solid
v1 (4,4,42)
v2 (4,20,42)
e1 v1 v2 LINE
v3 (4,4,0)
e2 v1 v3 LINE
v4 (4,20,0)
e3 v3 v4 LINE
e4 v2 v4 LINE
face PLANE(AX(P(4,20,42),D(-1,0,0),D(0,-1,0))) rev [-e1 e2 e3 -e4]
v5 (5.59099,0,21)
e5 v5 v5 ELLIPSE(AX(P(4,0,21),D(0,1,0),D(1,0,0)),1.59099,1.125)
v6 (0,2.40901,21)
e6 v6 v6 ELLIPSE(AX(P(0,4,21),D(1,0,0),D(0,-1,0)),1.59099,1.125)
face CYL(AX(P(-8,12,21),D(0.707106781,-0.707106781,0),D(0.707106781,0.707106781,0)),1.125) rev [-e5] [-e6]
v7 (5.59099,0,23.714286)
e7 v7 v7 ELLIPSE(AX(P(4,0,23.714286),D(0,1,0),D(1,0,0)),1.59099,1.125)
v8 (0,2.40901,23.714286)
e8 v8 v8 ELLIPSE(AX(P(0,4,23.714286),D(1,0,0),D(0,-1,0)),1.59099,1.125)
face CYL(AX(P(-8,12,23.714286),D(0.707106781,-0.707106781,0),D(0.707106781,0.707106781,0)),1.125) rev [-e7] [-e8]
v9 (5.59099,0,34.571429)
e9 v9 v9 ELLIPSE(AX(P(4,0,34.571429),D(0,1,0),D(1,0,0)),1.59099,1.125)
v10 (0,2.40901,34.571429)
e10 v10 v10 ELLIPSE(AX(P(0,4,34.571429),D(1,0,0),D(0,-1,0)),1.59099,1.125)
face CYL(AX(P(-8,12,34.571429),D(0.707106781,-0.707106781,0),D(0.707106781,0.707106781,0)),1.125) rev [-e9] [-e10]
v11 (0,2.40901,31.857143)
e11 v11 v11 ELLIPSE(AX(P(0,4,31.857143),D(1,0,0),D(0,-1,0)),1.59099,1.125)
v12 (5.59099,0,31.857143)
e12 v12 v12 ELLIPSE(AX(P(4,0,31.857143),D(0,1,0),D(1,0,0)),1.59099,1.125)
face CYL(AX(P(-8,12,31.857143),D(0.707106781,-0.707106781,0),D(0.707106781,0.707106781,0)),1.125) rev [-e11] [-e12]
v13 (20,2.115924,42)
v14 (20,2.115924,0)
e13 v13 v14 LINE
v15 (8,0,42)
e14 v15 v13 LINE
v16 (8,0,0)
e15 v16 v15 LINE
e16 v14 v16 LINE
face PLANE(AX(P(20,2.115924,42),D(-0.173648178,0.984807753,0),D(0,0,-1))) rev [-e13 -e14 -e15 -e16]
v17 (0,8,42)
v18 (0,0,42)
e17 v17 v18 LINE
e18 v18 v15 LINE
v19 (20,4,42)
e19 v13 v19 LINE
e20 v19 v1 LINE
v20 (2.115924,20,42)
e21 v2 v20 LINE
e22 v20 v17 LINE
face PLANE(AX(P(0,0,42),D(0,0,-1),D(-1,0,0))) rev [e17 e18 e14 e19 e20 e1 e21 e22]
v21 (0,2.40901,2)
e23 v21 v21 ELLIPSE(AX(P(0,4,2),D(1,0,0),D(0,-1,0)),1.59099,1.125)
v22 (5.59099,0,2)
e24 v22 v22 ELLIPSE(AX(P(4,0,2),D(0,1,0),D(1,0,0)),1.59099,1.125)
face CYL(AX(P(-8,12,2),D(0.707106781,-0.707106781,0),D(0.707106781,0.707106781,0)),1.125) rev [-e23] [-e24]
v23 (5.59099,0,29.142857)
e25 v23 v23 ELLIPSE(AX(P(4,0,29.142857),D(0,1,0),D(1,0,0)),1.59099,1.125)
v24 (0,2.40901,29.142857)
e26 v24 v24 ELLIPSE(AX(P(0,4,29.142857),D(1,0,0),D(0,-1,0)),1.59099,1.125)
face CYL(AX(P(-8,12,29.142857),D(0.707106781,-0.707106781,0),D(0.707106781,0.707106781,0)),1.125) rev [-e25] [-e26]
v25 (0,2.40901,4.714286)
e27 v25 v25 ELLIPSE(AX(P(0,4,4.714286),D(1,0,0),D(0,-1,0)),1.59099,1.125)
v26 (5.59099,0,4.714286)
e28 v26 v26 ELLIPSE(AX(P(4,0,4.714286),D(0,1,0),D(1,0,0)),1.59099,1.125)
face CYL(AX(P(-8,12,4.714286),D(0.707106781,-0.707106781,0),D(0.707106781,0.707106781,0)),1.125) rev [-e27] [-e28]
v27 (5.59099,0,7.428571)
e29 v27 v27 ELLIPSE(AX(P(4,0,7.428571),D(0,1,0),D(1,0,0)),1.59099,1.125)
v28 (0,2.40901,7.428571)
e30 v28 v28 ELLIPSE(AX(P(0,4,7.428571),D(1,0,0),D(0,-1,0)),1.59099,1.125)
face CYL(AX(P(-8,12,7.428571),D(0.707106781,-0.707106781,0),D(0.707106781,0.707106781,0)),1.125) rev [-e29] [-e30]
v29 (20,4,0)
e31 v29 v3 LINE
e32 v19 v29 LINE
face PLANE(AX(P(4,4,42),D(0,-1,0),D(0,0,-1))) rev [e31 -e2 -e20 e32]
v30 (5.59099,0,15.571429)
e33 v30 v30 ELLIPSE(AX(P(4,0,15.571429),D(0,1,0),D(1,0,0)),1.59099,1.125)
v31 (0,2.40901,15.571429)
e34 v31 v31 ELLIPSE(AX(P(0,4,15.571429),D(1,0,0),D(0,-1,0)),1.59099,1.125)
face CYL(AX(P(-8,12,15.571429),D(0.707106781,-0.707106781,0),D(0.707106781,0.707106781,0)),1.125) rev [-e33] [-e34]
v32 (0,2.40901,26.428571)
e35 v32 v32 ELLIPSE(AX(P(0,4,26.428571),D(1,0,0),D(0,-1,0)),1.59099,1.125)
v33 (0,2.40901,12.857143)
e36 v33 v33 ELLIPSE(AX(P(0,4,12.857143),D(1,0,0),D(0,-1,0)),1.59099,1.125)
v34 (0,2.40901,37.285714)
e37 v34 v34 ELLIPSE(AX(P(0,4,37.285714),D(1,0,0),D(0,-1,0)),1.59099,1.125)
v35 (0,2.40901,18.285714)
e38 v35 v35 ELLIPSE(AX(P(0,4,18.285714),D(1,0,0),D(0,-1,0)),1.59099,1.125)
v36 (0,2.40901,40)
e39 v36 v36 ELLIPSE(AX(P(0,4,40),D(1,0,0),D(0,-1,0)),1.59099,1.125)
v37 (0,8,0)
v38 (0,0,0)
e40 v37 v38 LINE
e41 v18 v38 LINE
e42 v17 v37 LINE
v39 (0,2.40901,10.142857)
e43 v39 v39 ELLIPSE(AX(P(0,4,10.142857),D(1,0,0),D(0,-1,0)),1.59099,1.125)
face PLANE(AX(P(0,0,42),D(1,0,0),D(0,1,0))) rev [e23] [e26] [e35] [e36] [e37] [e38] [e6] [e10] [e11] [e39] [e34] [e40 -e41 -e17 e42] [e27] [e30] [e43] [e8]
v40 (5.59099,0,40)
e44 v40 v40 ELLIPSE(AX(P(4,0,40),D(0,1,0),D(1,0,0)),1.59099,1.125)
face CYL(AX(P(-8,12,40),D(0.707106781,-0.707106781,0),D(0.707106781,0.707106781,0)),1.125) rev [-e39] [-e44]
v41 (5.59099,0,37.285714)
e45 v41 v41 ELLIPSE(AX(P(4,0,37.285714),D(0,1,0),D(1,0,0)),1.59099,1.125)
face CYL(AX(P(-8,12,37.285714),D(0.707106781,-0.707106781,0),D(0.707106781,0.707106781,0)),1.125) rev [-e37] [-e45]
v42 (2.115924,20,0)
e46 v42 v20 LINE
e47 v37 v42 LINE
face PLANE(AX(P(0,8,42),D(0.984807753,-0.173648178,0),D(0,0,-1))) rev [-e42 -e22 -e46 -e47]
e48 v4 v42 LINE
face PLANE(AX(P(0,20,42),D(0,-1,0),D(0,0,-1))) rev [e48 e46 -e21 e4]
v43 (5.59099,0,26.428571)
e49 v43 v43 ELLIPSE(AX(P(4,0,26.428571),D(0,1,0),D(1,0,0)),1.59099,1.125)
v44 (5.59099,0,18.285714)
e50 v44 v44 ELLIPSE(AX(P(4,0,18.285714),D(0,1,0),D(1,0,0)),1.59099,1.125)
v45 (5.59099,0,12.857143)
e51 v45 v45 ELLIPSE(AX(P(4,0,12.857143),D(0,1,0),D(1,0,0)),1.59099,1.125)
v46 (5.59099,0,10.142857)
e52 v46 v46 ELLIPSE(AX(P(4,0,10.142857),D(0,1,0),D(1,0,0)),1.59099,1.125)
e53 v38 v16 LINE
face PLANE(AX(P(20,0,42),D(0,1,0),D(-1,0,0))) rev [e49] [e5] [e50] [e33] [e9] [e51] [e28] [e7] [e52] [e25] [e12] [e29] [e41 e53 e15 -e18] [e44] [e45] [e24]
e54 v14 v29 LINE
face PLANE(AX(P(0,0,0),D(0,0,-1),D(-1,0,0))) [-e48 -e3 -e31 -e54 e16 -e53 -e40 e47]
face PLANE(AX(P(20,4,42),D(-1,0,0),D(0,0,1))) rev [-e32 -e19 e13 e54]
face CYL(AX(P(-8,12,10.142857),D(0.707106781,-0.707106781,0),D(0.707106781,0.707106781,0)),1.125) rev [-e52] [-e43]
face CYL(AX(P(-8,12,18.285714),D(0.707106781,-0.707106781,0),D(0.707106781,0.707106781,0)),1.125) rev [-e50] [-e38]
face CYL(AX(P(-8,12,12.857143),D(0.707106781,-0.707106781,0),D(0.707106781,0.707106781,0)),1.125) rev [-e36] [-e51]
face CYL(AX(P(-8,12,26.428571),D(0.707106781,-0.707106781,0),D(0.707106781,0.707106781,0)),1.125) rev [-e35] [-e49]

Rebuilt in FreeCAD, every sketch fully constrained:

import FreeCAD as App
import Part
import Sketcher

V = App.Vector
Q = App.Units.Quantity


def edges_at(feature, points):
    """Names of the edges that pass closest to the given points."""
    edges = feature.Shape.Edges
    near = lambda p: min(range(len(edges)), key=lambda i: edges[i].distToShape(Part.Vertex(*p))[0])
    return sorted({f"Edge{near(p) + 1}" for p in points})

doc = App.newDocument("Part")
params = doc.addObject("Spreadsheet::Sheet", "Params")
for row, (alias, value) in enumerate([
    ("sketch1_width", "20 mm"),
    ("sketch1_width2", "16 mm"),
    ("pad1_length", "42 mm"),
    ("sketch2_diameter", "2.25 mm"),
    ("chamfer_size", "12 mm"),
    ("chamfer_size2", "2.115924 mm"),
    ("chamfer2_size", "12 mm"),
    ("chamfer2_size2", "2.115924 mm"),
], start=1):
    params.set(f"A{row}", alias)
    params.set(f"B{row}", "=" + value)
    params.setAlias(f"B{row}", alias)

body = doc.addObject("PartDesign::Body", "Body")

sketch1 = body.newObject("Sketcher::SketchObject", "Sketch")
sketch1.AttachmentSupport = (doc.getObject("XY_Plane"), [""])
sketch1.MapMode = "FlatFace"
sketch1.addGeometry([
    Part.LineSegment(V(0, 20, 0), V(0, 0, 0)),
    Part.LineSegment(V(0, 0, 0), V(20, 0, 0)),
    Part.LineSegment(V(20, 0, 0), V(20, 4, 0)),
    Part.LineSegment(V(20, 4, 0), V(4, 4, 0)),
    Part.LineSegment(V(4, 4, 0), V(4, 20, 0)),
    Part.LineSegment(V(4, 20, 0), V(0, 20, 0)),
], False)
sketch1.addConstraint([
    Sketcher.Constraint("Coincident", 0, 2, 1, 1),
    Sketcher.Constraint("Coincident", 1, 2, 2, 1),
    Sketcher.Constraint("Coincident", 2, 2, 3, 1),
    Sketcher.Constraint("Coincident", 3, 2, 4, 1),
    Sketcher.Constraint("Coincident", 4, 2, 5, 1),
    Sketcher.Constraint("Coincident", 5, 2, 0, 1),
    Sketcher.Constraint("Vertical", 0),
    Sketcher.Constraint("Horizontal", 1),
    Sketcher.Constraint("Vertical", 2),
    Sketcher.Constraint("Horizontal", 3),
    Sketcher.Constraint("Vertical", 4),
    Sketcher.Constraint("Horizontal", 5),
    Sketcher.Constraint("Coincident", 0, 2, -1, 1),
    Sketcher.Constraint("Equal", 1, 0),
    Sketcher.Constraint("Equal", 5, 2),
    Sketcher.Constraint("DistanceX", 1, 1, 1, 2, Q("20 mm")),
    Sketcher.Constraint("DistanceX", 3, 2, 3, 1, Q("16 mm")),
])
sketch1.setExpression("Constraints[15]", "Params.sketch1_width")
sketch1.setExpression("Constraints[16]", "Params.sketch1_width2")
pad1 = body.newObject("PartDesign::Pad", "Pad")
pad1.Profile = sketch1
pad1.setExpression("Length", "Params.pad1_length")

sketch2 = body.newObject("Sketcher::SketchObject", "Sketch001")
sketch2.Placement = App.Placement(V(0, 0, 0), App.Rotation(V(0, 0, -1), V(0.707106781, 0.707106781, 0), V(0.707106781, -0.707106781, 0), "ZXY"))
sketch2.addGeometry([
    Part.Circle(V(-40, 2.8, 0), V(0, 0, 1), 1.1),
    Part.Circle(V(-37.3, 2.8, 0), V(0, 0, 1), 1.1),
    Part.Circle(V(-34.6, 2.8, 0), V(0, 0, 1), 1.1),
    Part.Circle(V(-31.9, 2.8, 0), V(0, 0, 1), 1.1),
    Part.Circle(V(-29.1, 2.8, 0), V(0, 0, 1), 1.1),
    Part.Circle(V(-26.4, 2.8, 0), V(0, 0, 1), 1.1),
    Part.Circle(V(-23.7, 2.8, 0), V(0, 0, 1), 1.1),
    Part.Circle(V(-21, 2.8, 0), V(0, 0, 1), 1.1),
    Part.Circle(V(-18.3, 2.8, 0), V(0, 0, 1), 1.1),
    Part.Circle(V(-15.6, 2.8, 0), V(0, 0, 1), 1.1),
    Part.Circle(V(-12.9, 2.8, 0), V(0, 0, 1), 1.1),
    Part.Circle(V(-10.1, 2.8, 0), V(0, 0, 1), 1.1),
    Part.Circle(V(-7.4, 2.8, 0), V(0, 0, 1), 1.1),
    Part.Circle(V(-4.7, 2.8, 0), V(0, 0, 1), 1.1),
    Part.Circle(V(-2, 2.8, 0), V(0, 0, 1), 1.1),
], False)
sketch2.addConstraint([
    Sketcher.Constraint("Equal", 0, 1),
    Sketcher.Constraint("Equal", 1, 2),
    Sketcher.Constraint("Equal", 2, 3),
    Sketcher.Constraint("Equal", 3, 4),
    Sketcher.Constraint("Equal", 4, 5),
    Sketcher.Constraint("Equal", 5, 6),
    Sketcher.Constraint("Equal", 6, 7),
    Sketcher.Constraint("Equal", 7, 8),
    Sketcher.Constraint("Equal", 8, 9),
    Sketcher.Constraint("Equal", 9, 10),
    Sketcher.Constraint("Equal", 10, 11),
    Sketcher.Constraint("Equal", 11, 12),
    Sketcher.Constraint("Equal", 12, 13),
    Sketcher.Constraint("Equal", 13, 14),
    Sketcher.Constraint("Horizontal", 0, 3, 1, 3),
    Sketcher.Constraint("Horizontal", 1, 3, 2, 3),
    Sketcher.Constraint("Horizontal", 2, 3, 3, 3),
    Sketcher.Constraint("Horizontal", 3, 3, 4, 3),
    Sketcher.Constraint("Horizontal", 4, 3, 5, 3),
    Sketcher.Constraint("Horizontal", 5, 3, 6, 3),
    Sketcher.Constraint("Horizontal", 6, 3, 7, 3),
    Sketcher.Constraint("Horizontal", 7, 3, 8, 3),
    Sketcher.Constraint("Horizontal", 8, 3, 9, 3),
    Sketcher.Constraint("Horizontal", 9, 3, 10, 3),
    Sketcher.Constraint("Horizontal", 10, 3, 11, 3),
    Sketcher.Constraint("Horizontal", 11, 3, 12, 3),
    Sketcher.Constraint("Horizontal", 12, 3, 13, 3),
    Sketcher.Constraint("Horizontal", 13, 3, 14, 3),
    Sketcher.Constraint("Diameter", 0, Q("2.25 mm")),
    Sketcher.Constraint("DistanceX", 0, 3, -1, 1, Q("40 mm")),
    Sketcher.Constraint("DistanceX", 7, 3, -1, 1, Q("21 mm")),
    Sketcher.Constraint("DistanceX", 14, 3, -1, 1, Q("2 mm")),
    Sketcher.Constraint("DistanceX", 2, 3, -1, 1, Q("34.571429 mm")),
    Sketcher.Constraint("DistanceX", 5, 3, -1, 1, Q("26.428571 mm")),
    Sketcher.Constraint("DistanceX", 9, 3, -1, 1, Q("15.571429 mm")),
    Sketcher.Constraint("DistanceX", 12, 3, -1, 1, Q("7.428571 mm")),
    Sketcher.Constraint("DistanceX", 1, 3, 3, 3, Q("5.428571 mm")),
    Sketcher.Constraint("DistanceX", 2, 3, 4, 3, Q("5.428571 mm")),
    Sketcher.Constraint("DistanceX", 3, 3, 5, 3, Q("5.428571 mm")),
    Sketcher.Constraint("DistanceX", 4, 3, 6, 3, Q("5.428571 mm")),
    Sketcher.Constraint("DistanceX", 6, 3, 8, 3, Q("5.428571 mm")),
    Sketcher.Constraint("DistanceX", 8, 3, 10, 3, Q("5.428571 mm")),
    Sketcher.Constraint("DistanceX", 9, 3, 11, 3, Q("5.428571 mm")),
    Sketcher.Constraint("DistanceX", 11, 3, 13, 3, Q("5.428571 mm")),
    Sketcher.Constraint("DistanceY", -1, 1, 0, 3, Q("2.828427 mm")),
])
sketch2.setExpression("Constraints[28]", "Params.sketch2_diameter")
pocket1 = body.newObject("PartDesign::Pocket", "Pocket")
pocket1.Profile = sketch2
pocket1.Type = "ThroughAll"
pocket1.Midplane = True
doc.recompute()

chamfer = body.newObject("PartDesign::Chamfer", "Chamfer")
chamfer.Base = (pocket1, edges_at(pocket1, [(20, 0, 21)]))
chamfer.ChamferType = "Two distances"
chamfer.setExpression("Size", "Params.chamfer_size")
chamfer.setExpression("Size2", "Params.chamfer_size2")
doc.recompute()

chamfer2 = body.newObject("PartDesign::Chamfer", "Chamfer001")
chamfer2.Base = (chamfer, edges_at(chamfer, [(0, 20, 21)]))
chamfer2.ChamferType = "Two distances"
chamfer2.setExpression("Size", "Params.chamfer2_size")
chamfer2.setExpression("Size2", "Params.chamfer2_size2")

doc.recompute()
